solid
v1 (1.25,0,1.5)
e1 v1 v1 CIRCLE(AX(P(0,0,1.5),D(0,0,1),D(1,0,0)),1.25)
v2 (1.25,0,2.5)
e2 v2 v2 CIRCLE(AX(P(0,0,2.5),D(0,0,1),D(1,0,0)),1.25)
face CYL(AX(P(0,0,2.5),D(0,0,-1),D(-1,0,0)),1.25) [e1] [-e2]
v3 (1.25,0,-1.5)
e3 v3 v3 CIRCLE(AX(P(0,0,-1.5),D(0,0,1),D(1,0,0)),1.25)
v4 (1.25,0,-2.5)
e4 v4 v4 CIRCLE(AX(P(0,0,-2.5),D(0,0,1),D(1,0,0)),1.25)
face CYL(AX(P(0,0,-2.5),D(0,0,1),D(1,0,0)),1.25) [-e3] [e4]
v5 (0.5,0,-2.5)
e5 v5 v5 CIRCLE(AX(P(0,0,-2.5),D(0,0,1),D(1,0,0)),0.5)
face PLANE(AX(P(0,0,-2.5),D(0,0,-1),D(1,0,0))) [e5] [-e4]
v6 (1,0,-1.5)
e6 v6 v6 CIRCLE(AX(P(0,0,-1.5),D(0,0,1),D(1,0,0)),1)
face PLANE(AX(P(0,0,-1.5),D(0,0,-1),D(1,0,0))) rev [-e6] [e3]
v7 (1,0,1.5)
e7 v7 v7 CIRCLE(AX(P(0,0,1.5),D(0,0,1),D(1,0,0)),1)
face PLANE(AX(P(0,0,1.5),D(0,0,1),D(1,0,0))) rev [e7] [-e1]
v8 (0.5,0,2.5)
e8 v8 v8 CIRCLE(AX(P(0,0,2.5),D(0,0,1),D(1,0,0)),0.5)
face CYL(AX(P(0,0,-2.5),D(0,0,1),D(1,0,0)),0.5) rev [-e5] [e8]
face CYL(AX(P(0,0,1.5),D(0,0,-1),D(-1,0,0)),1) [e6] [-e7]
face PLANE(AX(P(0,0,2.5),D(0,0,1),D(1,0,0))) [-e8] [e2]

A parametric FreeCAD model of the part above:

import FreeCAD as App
import Part
import Sketcher
Q = App.Units.Quantity

doc = App.newDocument("Part")
body = doc.addObject("PartDesign::Body", "Body")

# Sketch on XY plane
sketch1 = doc.addObject("Sketcher::SketchObject", "Sketch")
body.addObject(sketch1)
sketch1.AttachmentSupport = (doc.XY_Plane, [""])
sketch1.MapMode = "FlatFace"
sketch1.addGeometry(Part.Circle(App.Vector(0, 0, 0), App.Vector(0, 0, 1), 1), False)
sketch1.addConstraint([
    Sketcher.Constraint("Coincident", 0, 3, -1, 1),
    Sketcher.Constraint("Diameter", 0, Q("2 mm")),
])
pad1 = doc.addObject("PartDesign::Pad", "Pad")
body.addObject(pad1)
pad1.Profile = sketch1
pad1.Length = 3
pad1.Midplane = True

# Sketch on XY plane
sketch2 = doc.addObject("Sketcher::SketchObject", "Sketch001")
body.addObject(sketch2)
sketch2.AttachmentSupport = (doc.XY_Plane, [""])
sketch2.MapMode = "FlatFace"
sketch2.AttachmentOffset = App.Placement(App.Vector(0, 0, 1.5), App.Rotation())
sketch2.addGeometry(Part.Circle(App.Vector(0, 0, 0), App.Vector(0, 0, 1), 1.25), False)
sketch2.addConstraint([
    Sketcher.Constraint("Coincident", 0, 3, -1, 1),
    Sketcher.Constraint("Diameter", 0, Q("2.5 mm")),
])
pad2 = doc.addObject("PartDesign::Pad", "Pad001")
body.addObject(pad2)
pad2.Profile = sketch2
pad2.Length = 1
doc.recompute()

mirrored = doc.addObject("PartDesign::Mirrored", "Mirrored")
body.addObject(mirrored)
mirrored.Originals = [pad2]
mirrored.MirrorPlane = (doc.XY_Plane, [""])
body.Tip = mirrored

# Sketch on XY plane
sketch3 = doc.addObject("Sketcher::SketchObject", "Sketch002")
body.addObject(sketch3)
sketch3.AttachmentSupport = (doc.XY_Plane, [""])
sketch3.MapMode = "FlatFace"
sketch3.addGeometry(Part.Circle(App.Vector(0, 0, 0), App.Vector(0, 0, 1), 0.5), False)
sketch3.addConstraint([
    Sketcher.Constraint("Coincident", 0, 3, -1, 1),
    Sketcher.Constraint("Diameter", 0, Q("1 mm")),
])
pocket1 = doc.addObject("PartDesign::Pocket", "Pocket")
body.addObject(pocket1)
pocket1.Profile = sketch3
pocket1.Type = "ThroughAll"
pocket1.Midplane = True

doc.recompute()
